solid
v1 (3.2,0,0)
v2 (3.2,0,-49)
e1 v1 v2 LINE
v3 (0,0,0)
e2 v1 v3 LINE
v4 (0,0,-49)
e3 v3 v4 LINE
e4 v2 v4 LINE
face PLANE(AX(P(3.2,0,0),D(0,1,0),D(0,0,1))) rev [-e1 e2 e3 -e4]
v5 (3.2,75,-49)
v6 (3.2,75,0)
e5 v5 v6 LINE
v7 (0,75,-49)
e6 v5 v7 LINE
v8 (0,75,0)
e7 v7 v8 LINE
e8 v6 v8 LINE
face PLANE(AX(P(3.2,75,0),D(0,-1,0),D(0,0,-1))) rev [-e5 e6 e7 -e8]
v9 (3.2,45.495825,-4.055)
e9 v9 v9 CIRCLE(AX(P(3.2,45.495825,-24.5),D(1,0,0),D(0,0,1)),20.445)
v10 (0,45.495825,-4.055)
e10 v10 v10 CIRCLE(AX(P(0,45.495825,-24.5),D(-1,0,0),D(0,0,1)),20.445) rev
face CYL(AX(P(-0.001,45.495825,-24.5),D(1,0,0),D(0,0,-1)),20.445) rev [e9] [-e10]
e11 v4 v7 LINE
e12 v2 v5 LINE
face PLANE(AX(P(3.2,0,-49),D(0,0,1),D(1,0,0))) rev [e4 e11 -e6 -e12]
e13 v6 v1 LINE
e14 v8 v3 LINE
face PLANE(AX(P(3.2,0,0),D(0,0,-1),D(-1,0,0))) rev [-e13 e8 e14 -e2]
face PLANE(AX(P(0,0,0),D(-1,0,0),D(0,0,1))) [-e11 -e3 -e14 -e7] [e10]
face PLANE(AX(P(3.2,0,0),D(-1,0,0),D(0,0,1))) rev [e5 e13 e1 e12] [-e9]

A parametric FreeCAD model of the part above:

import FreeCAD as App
import Part
import Sketcher

V = App.Vector
Q = App.Units.Quantity

doc = App.newDocument("Part")
body = doc.addObject("PartDesign::Body", "Body")

# Sketch on YZ plane
sketch1 = body.newObject("Sketcher::SketchObject", "Sketch")
sketch1.AttachmentSupport = (doc.getObject("YZ_Plane"), [""])
sketch1.MapMode = "FlatFace"
sketch1.addGeometry(Part.LineSegment(V(75, 0, 0), V(0, 0, 0)), False)
sketch1.addGeometry(Part.LineSegment(V(0, 0, 0), V(0, -49, 0)), False)
sketch1.addGeometry(Part.LineSegment(V(0, -49, 0), V(75, -49, 0)), False)
sketch1.addGeometry(Part.LineSegment(V(75, -49, 0), V(75, 0, 0)), False)
sketch1.addConstraint(Sketcher.Constraint("Coincident", 0, 2, 1, 1))
sketch1.addConstraint(Sketcher.Constraint("Coincident", 1, 2, 2, 1))
sketch1.addConstraint(Sketcher.Constraint("Coincident", 2, 2, 3, 1))
sketch1.addConstraint(Sketcher.Constraint("Coincident", 3, 2, 0, 1))
sketch1.addConstraint(Sketcher.Constraint("Horizontal", 0))
sketch1.addConstraint(Sketcher.Constraint("Vertical", 1))
sketch1.addConstraint(Sketcher.Constraint("Horizontal", 2))
sketch1.addConstraint(Sketcher.Constraint("Vertical", 3))
sketch1.addConstraint(Sketcher.Constraint("Coincident", 0, 2, -1, 1))
sketch1.addConstraint(Sketcher.Constraint("DistanceX", 0, 2, 0, 1, Q("75 mm")))
sketch1.addConstraint(Sketcher.Constraint("DistanceY", 1, 2, 1, 1, Q("49 mm")))
pad1 = body.newObject("PartDesign::Pad", "Pad")
pad1.Profile = sketch1
pad1.Length = 3.2

# Sketch on YZ plane
sketch2 = body.newObject("Sketcher::SketchObject", "Sketch001")
sketch2.AttachmentSupport = (doc.getObject("YZ_Plane"), [""])
sketch2.MapMode = "FlatFace"
sketch2.AttachmentOffset = App.Placement(V(0, 0, 3.2), App.Rotation())
sketch2.addGeometry(Part.Circle(V(45, -24, 0), V(0, 0, 1), 20), False)
sketch2.addConstraint(Sketcher.Constraint("Diameter", 0, Q("40.89 mm")))
sketch2.addConstraint(Sketcher.Constraint("DistanceY", 0, 3, -1, 1, Q("24.5 mm")))
sketch2.addConstraint(Sketcher.Constraint("DistanceX", -1, 1, 0, 3, Q("45.495825 mm")))
pocket1 = body.newObject("PartDesign::Pocket", "Pocket")
pocket1.Profile = sketch2
pocket1.Type = "UpToFirst"

doc.recompute()
